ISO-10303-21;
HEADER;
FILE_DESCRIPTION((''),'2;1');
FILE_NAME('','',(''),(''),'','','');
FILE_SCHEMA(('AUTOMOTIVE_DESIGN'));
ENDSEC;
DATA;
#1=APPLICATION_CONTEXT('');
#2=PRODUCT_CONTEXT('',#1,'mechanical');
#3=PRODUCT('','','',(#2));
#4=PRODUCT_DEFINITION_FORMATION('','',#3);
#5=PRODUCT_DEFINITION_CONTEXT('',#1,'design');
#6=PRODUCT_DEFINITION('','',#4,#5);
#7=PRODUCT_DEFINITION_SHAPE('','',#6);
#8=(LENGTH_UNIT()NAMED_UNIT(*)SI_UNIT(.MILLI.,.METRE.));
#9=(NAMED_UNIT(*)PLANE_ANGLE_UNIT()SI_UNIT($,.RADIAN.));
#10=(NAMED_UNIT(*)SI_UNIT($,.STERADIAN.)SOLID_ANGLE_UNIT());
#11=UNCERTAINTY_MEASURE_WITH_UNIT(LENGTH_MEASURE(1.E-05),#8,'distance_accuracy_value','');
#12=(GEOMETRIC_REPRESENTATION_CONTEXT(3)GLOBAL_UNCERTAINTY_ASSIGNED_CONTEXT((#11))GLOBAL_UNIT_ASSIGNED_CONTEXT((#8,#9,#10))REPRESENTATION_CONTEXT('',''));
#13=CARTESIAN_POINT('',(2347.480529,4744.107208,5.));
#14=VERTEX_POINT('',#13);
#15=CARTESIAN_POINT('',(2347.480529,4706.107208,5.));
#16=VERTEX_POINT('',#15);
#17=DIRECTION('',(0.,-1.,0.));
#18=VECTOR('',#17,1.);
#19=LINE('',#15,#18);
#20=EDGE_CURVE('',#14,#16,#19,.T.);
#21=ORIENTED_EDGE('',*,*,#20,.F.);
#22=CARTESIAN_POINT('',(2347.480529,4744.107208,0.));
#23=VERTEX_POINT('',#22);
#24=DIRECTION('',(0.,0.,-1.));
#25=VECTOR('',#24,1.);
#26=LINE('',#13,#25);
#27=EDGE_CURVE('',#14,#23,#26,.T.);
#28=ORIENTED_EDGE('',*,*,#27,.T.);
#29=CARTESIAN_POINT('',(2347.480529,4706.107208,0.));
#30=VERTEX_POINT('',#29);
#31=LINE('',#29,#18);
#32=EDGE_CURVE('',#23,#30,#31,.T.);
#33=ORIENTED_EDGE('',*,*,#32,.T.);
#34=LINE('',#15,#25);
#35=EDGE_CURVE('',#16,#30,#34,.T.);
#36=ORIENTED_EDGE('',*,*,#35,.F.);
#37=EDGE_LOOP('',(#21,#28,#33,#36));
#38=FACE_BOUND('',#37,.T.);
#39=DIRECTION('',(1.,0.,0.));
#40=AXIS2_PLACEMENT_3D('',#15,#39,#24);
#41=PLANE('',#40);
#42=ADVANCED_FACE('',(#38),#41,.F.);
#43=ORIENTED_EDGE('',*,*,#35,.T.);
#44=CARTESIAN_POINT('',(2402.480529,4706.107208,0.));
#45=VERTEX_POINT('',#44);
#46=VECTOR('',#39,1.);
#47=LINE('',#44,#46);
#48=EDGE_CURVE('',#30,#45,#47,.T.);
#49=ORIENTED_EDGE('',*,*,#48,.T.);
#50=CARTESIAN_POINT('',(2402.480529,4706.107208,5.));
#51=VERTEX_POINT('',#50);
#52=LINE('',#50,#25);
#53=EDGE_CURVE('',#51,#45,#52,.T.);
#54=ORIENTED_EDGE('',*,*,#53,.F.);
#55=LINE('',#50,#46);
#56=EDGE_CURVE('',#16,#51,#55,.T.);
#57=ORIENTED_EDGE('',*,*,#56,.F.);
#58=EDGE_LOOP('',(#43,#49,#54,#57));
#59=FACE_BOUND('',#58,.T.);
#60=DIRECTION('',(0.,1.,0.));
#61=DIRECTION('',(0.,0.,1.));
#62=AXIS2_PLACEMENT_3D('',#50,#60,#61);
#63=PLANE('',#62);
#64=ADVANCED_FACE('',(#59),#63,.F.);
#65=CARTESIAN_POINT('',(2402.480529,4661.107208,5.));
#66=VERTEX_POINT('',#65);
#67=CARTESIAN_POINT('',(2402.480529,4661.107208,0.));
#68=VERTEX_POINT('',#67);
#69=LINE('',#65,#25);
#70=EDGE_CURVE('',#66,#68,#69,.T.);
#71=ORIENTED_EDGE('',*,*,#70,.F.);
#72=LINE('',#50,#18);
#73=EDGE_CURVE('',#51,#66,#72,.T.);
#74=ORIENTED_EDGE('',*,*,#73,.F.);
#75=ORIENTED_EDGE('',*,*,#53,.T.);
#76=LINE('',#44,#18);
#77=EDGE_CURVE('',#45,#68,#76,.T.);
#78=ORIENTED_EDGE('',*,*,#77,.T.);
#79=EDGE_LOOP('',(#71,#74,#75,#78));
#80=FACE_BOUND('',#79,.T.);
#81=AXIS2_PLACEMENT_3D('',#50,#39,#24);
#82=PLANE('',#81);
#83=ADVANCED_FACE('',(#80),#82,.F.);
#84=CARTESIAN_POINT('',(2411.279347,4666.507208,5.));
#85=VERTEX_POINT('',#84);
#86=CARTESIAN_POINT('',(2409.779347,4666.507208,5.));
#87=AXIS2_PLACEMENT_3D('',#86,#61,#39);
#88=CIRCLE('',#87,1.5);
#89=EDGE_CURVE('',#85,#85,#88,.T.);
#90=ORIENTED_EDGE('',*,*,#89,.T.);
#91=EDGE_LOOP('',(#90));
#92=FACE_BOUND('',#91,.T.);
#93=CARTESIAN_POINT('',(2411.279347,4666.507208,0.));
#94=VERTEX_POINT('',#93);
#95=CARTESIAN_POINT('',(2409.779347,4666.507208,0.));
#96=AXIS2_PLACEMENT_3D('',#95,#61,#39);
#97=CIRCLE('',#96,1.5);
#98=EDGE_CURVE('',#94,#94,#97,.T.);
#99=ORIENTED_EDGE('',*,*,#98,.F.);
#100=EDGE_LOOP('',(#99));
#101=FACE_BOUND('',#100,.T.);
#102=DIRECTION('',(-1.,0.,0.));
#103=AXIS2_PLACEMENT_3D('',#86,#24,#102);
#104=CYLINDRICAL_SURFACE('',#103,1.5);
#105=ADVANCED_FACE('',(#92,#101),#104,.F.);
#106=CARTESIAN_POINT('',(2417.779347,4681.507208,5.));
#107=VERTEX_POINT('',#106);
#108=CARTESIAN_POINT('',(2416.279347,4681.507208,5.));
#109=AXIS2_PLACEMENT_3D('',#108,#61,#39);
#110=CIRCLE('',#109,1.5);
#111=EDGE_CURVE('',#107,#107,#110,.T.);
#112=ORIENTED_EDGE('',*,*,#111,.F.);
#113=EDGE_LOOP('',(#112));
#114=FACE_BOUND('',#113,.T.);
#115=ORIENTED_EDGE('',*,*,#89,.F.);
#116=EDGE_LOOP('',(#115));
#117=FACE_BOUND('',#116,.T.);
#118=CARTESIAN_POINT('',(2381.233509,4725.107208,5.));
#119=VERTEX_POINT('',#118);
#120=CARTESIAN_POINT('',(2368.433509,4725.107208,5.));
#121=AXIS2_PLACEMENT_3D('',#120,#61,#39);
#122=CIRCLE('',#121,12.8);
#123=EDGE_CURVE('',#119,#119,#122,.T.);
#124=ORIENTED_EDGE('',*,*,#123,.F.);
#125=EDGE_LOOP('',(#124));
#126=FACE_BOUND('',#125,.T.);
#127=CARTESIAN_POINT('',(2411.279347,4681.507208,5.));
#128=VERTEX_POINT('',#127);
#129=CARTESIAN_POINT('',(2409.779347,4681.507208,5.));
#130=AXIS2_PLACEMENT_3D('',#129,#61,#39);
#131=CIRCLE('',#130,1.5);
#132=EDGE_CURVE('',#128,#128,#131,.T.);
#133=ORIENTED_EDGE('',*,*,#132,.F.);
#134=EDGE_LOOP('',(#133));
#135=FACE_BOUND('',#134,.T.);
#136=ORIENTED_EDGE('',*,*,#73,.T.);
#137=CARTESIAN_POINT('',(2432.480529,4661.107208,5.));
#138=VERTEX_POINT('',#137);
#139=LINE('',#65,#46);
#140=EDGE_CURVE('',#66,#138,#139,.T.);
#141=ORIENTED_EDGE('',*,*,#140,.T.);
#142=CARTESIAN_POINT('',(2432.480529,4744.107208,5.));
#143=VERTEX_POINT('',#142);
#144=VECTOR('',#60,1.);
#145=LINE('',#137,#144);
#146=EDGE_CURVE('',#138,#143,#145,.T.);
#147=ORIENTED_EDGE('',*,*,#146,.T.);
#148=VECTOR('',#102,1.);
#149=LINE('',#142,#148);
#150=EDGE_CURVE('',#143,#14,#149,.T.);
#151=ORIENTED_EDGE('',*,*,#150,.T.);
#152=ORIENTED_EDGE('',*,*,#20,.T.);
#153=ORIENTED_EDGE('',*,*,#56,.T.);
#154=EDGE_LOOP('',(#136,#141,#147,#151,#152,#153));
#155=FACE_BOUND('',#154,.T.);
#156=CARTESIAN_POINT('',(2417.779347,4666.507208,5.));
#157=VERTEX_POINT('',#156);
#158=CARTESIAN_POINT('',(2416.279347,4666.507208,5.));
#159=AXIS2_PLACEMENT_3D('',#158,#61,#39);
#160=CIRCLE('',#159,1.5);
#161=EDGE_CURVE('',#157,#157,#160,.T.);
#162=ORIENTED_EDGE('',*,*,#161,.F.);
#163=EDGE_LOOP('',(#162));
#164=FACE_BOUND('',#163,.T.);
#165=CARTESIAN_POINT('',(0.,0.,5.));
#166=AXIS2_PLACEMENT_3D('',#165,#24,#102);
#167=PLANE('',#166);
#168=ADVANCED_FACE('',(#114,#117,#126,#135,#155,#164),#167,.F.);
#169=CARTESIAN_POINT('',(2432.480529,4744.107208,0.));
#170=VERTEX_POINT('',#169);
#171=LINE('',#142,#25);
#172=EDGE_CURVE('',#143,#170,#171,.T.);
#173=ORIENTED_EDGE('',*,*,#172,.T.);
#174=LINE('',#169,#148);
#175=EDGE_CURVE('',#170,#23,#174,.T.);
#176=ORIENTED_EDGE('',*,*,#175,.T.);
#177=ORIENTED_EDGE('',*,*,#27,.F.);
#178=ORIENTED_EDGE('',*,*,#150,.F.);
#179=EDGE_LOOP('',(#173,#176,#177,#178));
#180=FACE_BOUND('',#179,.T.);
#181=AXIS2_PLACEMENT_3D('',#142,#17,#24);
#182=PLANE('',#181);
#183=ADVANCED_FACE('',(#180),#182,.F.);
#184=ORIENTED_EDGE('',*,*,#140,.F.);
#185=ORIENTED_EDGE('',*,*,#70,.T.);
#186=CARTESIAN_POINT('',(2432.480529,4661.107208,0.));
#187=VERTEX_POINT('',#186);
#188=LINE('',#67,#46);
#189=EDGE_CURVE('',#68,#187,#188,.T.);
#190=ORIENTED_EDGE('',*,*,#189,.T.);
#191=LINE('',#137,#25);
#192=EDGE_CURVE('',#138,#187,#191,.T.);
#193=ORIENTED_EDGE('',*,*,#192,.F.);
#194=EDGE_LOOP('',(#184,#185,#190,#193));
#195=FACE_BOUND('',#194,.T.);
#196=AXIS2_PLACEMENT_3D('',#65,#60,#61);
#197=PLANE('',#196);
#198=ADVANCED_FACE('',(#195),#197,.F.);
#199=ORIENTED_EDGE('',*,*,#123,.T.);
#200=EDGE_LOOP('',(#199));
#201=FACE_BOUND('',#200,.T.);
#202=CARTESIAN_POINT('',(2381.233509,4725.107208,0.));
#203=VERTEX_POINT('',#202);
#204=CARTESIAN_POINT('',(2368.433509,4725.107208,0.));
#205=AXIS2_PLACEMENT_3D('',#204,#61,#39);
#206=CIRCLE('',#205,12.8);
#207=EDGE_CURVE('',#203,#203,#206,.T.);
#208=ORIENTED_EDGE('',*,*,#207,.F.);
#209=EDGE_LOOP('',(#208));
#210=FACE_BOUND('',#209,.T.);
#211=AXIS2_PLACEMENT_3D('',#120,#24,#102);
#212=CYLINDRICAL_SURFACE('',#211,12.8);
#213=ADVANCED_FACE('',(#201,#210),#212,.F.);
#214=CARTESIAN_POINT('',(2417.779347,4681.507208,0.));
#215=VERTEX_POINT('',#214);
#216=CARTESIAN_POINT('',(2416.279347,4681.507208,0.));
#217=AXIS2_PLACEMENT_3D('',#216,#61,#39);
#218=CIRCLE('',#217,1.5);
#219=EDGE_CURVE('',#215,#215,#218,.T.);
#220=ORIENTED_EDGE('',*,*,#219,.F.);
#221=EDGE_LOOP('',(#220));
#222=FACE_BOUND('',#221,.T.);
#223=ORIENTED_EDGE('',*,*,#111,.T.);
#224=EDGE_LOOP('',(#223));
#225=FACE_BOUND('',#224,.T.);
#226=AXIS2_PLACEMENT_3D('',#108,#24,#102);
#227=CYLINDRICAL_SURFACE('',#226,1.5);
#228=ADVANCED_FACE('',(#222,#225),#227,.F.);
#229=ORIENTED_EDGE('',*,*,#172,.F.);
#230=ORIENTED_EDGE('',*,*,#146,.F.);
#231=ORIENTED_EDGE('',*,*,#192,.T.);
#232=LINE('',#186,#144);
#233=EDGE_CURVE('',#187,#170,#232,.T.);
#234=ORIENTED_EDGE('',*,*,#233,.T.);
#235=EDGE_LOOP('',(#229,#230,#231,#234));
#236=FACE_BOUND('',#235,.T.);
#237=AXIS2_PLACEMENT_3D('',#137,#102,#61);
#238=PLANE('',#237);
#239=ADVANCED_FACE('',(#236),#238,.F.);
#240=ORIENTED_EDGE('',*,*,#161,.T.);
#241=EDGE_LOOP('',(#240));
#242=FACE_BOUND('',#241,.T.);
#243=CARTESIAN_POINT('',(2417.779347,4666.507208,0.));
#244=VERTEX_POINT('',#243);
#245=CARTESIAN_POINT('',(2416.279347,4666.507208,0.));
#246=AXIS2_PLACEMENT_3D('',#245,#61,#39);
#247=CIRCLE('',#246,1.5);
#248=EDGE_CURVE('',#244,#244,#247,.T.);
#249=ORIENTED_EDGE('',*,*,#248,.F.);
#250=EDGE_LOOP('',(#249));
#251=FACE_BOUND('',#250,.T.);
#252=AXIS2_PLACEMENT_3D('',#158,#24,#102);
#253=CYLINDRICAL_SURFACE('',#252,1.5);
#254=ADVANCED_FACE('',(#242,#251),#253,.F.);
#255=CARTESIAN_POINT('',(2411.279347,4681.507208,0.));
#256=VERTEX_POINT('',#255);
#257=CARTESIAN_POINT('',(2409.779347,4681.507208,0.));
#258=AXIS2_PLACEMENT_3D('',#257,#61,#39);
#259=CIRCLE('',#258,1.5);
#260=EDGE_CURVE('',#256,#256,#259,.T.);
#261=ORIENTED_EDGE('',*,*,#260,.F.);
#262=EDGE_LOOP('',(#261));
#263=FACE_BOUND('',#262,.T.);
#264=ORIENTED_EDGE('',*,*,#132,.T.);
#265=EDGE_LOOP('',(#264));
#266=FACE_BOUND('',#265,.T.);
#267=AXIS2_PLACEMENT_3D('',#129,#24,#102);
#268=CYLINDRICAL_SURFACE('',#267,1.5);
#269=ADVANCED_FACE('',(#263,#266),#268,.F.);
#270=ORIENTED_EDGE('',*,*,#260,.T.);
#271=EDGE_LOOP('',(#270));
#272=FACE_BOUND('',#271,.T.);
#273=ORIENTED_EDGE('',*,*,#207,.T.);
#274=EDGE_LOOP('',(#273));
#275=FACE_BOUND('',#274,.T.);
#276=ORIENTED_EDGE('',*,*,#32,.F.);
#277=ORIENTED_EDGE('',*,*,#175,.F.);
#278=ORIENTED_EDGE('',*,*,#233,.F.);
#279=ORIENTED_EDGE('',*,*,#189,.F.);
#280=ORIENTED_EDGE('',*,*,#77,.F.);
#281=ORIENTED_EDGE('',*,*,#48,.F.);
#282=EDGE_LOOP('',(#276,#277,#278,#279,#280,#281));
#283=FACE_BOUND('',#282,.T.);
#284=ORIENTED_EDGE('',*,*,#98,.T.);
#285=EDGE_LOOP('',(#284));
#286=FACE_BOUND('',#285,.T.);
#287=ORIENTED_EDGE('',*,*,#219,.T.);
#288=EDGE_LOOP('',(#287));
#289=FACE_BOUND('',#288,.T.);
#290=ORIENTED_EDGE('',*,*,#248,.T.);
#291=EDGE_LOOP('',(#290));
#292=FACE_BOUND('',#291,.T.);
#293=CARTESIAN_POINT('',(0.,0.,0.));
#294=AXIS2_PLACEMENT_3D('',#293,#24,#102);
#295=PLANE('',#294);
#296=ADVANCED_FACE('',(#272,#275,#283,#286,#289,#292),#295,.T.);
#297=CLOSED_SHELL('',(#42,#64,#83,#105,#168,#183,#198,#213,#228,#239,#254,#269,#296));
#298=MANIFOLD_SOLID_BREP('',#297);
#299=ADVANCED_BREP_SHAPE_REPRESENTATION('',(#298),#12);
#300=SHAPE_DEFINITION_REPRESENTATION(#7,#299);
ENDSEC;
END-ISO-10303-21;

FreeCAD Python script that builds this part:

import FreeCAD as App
import Part
import Sketcher

V = App.Vector

doc = App.newDocument("Part")
params = doc.addObject("Spreadsheet::Sheet", "Params")
for row, (alias, value) in enumerate([
    ("sketch1_diameter", "3 mm"),
    ("sketch1_diameter2", "25.6 mm"),
    ("sketch1_width", "30 mm"),
    ("sketch1_width2", "85 mm"),
    ("sketch1_height", "45 mm"),
    ("pad1_length", "5 mm"),
], start=1):
    params.set(f"A{row}", alias)
    params.set(f"B{row}", "=" + value)
    params.setAlias(f"B{row}", alias)

body = doc.addObject("PartDesign::Body", "Body")

# Sketch on XY plane
sketch1 = body.newObject("Sketcher::SketchObject", "Sketch")
sketch1.AttachmentSupport = (doc.getObject("XY_Plane"), [""])
sketch1.MapMode = "FlatFace"
sketch1.addGeometry([
    Part.LineSegment(V(2402.5, 4706.1, 0), V(2402.5, 4661.1, 0)),  # 0
    Part.LineSegment(V(2402.5, 4661.1, 0), V(2432.5, 4661.1, 0)),  # 1
    Part.LineSegment(V(2432.5, 4661.1, 0), V(2432.5, 4744.1, 0)),  # 2
    Part.LineSegment(V(2432.5, 4744.1, 0), V(2347.5, 4744.1, 0)),  # 3
    Part.LineSegment(V(2347.5, 4744.1, 0), V(2347.5, 4706.1, 0)),  # 4
    Part.LineSegment(V(2347.5, 4706.1, 0), V(2402.5, 4706.1, 0)),  # 5
    Part.Circle(V(2409.8, 4666.5, 0), V(0, 0, 1), 1.5),  # 6
    Part.Circle(V(2416.3, 4666.5, 0), V(0, 0, 1), 1.5),  # 7
    Part.Circle(V(2409.8, 4681.5, 0), V(0, 0, 1), 1.5),  # 8
    Part.Circle(V(2416.3, 4681.5, 0), V(0, 0, 1), 1.5),  # 9
    Part.Circle(V(2368.4, 4725.1, 0), V(0, 0, 1), 12.8),  # 10
], False)
sketch1.addConstraint([
    Sketcher.Constraint("Coincident", 0, 2, 1, 1),
    Sketcher.Constraint("Coincident", 1, 2, 2, 1),
    Sketcher.Constraint("Coincident", 2, 2, 3, 1),
    Sketcher.Constraint("Coincident", 3, 2, 4, 1),
    Sketcher.Constraint("Coincident", 4, 2, 5, 1),
    Sketcher.Constraint("Coincident", 5, 2, 0, 1),
    Sketcher.Constraint("Vertical", 0),
    Sketcher.Constraint("Horizontal", 1),
    Sketcher.Constraint("Vertical", 2),
    Sketcher.Constraint("Horizontal", 3),
    Sketcher.Constraint("Vertical", 4),
    Sketcher.Constraint("Horizontal", 5),
    Sketcher.Constraint("Equal", 6, 7),
    Sketcher.Constraint("Equal", 7, 8),
    Sketcher.Constraint("Equal", 8, 9),
    Sketcher.Constraint("Horizontal", 6, 3, 7, 3),
    Sketcher.Constraint("Horizontal", 8, 3, 9, 3),
    Sketcher.Constraint("Vertical", 6, 3, 8, 3),
    Sketcher.Constraint("Vertical", 7, 3, 9, 3),
    Sketcher.Constraint("Diameter", 6, 3.0),
    Sketcher.Constraint("Diameter", 10, 25.6),
    Sketcher.Constraint("DistanceX", 1, 1, 1, 2, 30.0),
    Sketcher.Constraint("DistanceX", 3, 2, 3, 1, 85.0),
    Sketcher.Constraint("DistanceY", 0, 2, 0, 1, 45.0),
    Sketcher.Constraint("DistanceY", 2, 1, 2, 2, 83.0),
    Sketcher.Constraint("DistanceY", 6, 3, 8, 3, 15.0),
    Sketcher.Constraint("DistanceY", 0, 2, 10, 3, 64.0),
    Sketcher.Constraint("DistanceX", 6, 3, 7, 3, 6.5),
    Sketcher.Constraint("DistanceY", 8, 3, 10, 3, 43.6),
    Sketcher.Constraint("DistanceX", -1, 1, 10, 3, 2368.433509),
    Sketcher.Constraint("DistanceX", -1, 1, 0, 2, 2402.480529),
    Sketcher.Constraint("DistanceX", 10, 3, 8, 3, 41.345838),
    Sketcher.Constraint("DistanceY", -1, 1, 6, 3, 4666.507208),
])
sketch1.setExpression("Constraints[19]", "Params.sketch1_diameter")
sketch1.setExpression("Constraints[20]", "Params.sketch1_diameter2")
sketch1.setExpression("Constraints[21]", "Params.sketch1_width")
sketch1.setExpression("Constraints[22]", "Params.sketch1_width2")
sketch1.setExpression("Constraints[23]", "Params.sketch1_height")
pad1 = body.newObject("PartDesign::Pad", "Pad")
pad1.Profile = sketch1
pad1.setExpression("Length", "Params.pad1_length")

doc.recompute()
